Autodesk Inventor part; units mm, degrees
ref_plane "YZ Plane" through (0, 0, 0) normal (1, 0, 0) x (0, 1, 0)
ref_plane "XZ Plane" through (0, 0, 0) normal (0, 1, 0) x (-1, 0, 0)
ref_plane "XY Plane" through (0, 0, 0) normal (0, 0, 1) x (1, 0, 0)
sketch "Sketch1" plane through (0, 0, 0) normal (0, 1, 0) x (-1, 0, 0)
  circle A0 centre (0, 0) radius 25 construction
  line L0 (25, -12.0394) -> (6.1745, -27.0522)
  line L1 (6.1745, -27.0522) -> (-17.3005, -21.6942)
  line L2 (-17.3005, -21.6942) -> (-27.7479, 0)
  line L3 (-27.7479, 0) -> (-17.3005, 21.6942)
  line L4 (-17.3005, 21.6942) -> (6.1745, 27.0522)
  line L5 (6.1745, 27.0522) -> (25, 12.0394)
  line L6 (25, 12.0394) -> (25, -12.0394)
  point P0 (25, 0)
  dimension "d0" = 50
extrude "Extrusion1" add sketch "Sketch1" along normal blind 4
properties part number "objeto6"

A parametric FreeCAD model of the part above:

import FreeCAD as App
import Part
import Sketcher
Q = App.Units.Quantity


def add_polygon(sketch, points):
    """Adds a closed chain of lines whose ends are joined by coincident constraints."""
    first, n = sketch.GeometryCount, len(points)
    for a, b in zip(points, points[1:] + points[:1]):
        sketch.addGeometry(Part.LineSegment(App.Vector(*a, 0), App.Vector(*b, 0)), False)
    for i in range(n):
        sketch.addConstraint(Sketcher.Constraint("Coincident", first + i, 2, first + (i + 1) % n, 1))

doc = App.newDocument("Part")
params = doc.addObject("Spreadsheet::Sheet", "Params")
for row, (alias, value) in enumerate([
    ("pad1_length", "4 mm"),
], start=1):
    params.set(f"A{row}", alias)
    params.set(f"B{row}", "=" + value)
    params.setAlias(f"B{row}", alias)

body = doc.addObject("PartDesign::Body", "Body")

sketch1 = body.newObject("Sketcher::SketchObject", "Sketch")
sketch1.AttachmentSupport = (doc.getObject("XZ_Plane"), [""])
sketch1.MapMode = "FlatFace"
add_polygon(sketch1, [(-6, -27), (-25, -12), (-25, 12), (-6, 27), (17, 22), (28, 0), (17, -22)])
sketch1.addConstraint([
    Sketcher.Constraint("Vertical", 1),
    Sketcher.Constraint("Symmetric", 3, 2, 5, 2, -1),
    Sketcher.Constraint("Symmetric", 2, 2, 6, 2, -1),
    Sketcher.Constraint("PointOnObject", 4, 2, -1),
    Sketcher.Constraint("Equal", 0, 2),
    Sketcher.Constraint("Equal", 2, 3),
    Sketcher.Constraint("Equal", 3, 4),
    Sketcher.Constraint("DistanceX", 0, 2, -1, 1, Q("25 mm")),
    Sketcher.Constraint("DistanceY", 1, 1, 1, 2, Q("24.0788 mm")),
    Sketcher.Constraint("DistanceX", -1, 1, 4, 2, Q("27.748 mm")),
    Sketcher.Constraint("DistanceX", 2, 2, 3, 2, Q("23.475 mm")),
    Sketcher.Constraint("DistanceY", 3, 2, 2, 2, Q("5.358 mm")),
])
pad1 = body.newObject("PartDesign::Pad", "Pad")
pad1.Profile = sketch1
pad1.setExpression("Length", "Params.pad1_length")
pad1.Reversed = True

doc.recompute()
